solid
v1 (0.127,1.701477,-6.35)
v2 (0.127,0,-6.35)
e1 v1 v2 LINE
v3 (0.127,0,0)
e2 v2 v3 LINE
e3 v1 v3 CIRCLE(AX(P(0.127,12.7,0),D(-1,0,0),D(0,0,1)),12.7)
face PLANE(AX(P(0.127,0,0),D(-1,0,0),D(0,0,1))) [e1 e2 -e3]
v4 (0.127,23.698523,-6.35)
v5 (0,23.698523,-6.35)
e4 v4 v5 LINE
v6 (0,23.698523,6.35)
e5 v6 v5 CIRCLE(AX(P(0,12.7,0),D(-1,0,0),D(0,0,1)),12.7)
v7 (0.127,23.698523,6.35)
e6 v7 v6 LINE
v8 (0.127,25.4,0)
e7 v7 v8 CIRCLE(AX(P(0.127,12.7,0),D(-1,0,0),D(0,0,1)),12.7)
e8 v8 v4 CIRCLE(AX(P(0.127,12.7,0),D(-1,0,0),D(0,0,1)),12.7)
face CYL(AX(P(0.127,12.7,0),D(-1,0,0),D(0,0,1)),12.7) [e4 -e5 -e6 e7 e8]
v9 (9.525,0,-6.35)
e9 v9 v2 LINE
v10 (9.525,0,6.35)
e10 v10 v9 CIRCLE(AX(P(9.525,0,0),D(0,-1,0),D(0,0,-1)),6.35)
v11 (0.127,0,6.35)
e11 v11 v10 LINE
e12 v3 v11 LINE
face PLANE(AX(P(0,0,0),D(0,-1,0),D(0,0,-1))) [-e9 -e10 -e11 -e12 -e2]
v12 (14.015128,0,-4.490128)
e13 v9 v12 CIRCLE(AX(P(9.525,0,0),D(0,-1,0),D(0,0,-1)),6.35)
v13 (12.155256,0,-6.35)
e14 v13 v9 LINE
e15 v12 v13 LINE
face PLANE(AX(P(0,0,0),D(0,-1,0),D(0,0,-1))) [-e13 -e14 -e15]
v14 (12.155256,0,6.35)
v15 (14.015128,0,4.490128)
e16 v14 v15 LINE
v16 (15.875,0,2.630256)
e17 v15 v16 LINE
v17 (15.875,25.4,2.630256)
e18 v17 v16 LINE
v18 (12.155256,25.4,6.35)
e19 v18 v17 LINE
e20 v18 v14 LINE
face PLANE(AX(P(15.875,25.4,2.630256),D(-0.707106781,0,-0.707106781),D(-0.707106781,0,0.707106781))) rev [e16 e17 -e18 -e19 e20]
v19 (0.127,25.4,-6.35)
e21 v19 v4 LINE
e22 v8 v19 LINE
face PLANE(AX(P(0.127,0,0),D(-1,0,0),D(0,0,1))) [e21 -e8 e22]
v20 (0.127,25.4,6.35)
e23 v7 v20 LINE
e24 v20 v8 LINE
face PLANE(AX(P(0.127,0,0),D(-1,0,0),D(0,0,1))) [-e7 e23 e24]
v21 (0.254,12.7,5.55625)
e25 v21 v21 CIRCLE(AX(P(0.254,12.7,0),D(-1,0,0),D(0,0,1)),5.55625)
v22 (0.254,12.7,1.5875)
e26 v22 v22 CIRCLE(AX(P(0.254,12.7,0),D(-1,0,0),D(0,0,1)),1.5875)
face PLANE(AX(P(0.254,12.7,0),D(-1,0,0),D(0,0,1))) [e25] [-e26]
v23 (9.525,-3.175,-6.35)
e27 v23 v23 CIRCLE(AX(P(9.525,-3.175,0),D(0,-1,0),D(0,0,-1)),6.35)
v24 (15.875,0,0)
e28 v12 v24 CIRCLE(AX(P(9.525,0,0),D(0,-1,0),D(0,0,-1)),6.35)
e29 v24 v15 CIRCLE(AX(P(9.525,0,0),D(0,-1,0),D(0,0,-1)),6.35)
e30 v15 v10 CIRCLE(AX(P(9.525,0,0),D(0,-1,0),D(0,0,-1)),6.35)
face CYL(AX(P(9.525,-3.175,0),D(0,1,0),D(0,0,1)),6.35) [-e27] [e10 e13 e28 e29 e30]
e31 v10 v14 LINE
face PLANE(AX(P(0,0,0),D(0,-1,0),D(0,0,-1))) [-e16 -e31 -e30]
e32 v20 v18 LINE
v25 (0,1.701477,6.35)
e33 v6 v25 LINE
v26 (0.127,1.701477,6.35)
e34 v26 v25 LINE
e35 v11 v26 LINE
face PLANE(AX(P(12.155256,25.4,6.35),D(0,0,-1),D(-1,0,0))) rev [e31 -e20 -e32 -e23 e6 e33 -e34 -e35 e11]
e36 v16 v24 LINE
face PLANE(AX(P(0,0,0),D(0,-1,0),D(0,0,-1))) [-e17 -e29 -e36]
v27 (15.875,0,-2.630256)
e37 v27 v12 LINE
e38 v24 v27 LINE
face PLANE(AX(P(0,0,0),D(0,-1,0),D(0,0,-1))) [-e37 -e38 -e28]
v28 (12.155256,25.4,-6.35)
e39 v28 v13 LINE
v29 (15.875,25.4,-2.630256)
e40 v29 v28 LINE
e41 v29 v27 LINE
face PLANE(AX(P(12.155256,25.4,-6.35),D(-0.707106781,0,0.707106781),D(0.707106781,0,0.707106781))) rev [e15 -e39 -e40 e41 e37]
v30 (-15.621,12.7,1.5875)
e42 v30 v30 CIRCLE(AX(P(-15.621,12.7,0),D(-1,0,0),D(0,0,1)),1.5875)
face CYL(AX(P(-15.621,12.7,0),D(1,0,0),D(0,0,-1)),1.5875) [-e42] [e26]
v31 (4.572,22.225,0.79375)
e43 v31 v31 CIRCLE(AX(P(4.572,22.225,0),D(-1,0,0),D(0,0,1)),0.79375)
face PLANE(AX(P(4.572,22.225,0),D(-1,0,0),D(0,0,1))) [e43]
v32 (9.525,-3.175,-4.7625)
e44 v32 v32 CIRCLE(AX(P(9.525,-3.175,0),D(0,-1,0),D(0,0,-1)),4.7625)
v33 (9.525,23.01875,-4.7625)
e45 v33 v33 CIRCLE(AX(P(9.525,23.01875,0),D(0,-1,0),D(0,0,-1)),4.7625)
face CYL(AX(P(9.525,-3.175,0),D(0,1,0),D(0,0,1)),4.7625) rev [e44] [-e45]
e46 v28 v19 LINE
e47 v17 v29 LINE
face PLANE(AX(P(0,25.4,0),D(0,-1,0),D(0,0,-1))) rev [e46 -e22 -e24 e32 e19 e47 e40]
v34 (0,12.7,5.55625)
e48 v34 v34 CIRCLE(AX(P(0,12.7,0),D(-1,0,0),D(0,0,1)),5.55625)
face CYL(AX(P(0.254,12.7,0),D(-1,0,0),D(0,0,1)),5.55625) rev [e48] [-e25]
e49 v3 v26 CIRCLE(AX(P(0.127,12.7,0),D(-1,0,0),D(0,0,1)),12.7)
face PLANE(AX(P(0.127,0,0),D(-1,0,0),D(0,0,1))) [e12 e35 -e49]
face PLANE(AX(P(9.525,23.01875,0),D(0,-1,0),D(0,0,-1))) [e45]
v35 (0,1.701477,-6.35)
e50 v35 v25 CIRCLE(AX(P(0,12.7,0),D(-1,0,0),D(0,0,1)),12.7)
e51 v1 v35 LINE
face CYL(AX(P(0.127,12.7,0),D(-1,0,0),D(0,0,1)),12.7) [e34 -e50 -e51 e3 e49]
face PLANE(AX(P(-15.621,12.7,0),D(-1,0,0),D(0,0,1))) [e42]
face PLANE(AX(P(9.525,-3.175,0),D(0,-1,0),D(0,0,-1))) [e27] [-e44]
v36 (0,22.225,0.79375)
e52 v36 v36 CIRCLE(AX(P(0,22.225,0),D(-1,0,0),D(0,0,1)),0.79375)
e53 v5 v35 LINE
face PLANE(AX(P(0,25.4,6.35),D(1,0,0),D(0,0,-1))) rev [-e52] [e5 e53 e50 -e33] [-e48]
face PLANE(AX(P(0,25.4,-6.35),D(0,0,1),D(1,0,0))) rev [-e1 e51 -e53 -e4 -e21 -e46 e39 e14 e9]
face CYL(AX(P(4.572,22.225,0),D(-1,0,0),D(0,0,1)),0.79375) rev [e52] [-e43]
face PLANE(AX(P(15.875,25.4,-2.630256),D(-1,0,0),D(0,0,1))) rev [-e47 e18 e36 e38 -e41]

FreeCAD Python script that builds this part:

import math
import FreeCAD as App
import Part
import Sketcher
from FreeCAD import Vector
Q = App.Units.Quantity


def add_polygon(sketch, points):
    """Adds a closed chain of lines whose ends are joined by coincident constraints."""
    first, n = sketch.GeometryCount, len(points)
    for a, b in zip(points, points[1:] + points[:1]):
        sketch.addGeometry(Part.LineSegment(App.Vector(*a, 0), App.Vector(*b, 0)), False)
    for i in range(n):
        sketch.addConstraint(Sketcher.Constraint("Coincident", first + i, 2, first + (i + 1) % n, 1))

doc = App.newDocument("Part")
params = doc.addObject("Spreadsheet::Sheet", "Params")
for row, (alias, value) in enumerate([
    ("sketch1_height", "0.5 in"),
    ("pad1_length", "1 in"),
    ("sketch2_diameter", "0.5 in"),
    ("sketch2_diameter2", "0.375 in"),
    ("pad2_length", "0.125 in"),
    ("sketch3_diameter", "0.375 in"),
    ("pocket1_length", "1.03125 in"),
    ("sketch4_diameter", "0.4375 in"),
    ("pocket2_length", "0.01 in"),
    ("sketch5_diameter", "0.125 in"),
    ("pad3_length", "0.625 in"),
    ("sketch6_diameter", "0.0625 in"),
    ("pocket3_length", "0.18 in"),
    ("sketch7_radius", "0.5 in"),
    ("sketch7_height", "0.25 in"),
    ("pocket4_length", "0.005 in"),
], start=1):
    params.set(f"A{row}", alias)
    params.set(f"B{row}", "=" + value)
    params.setAlias(f"B{row}", alias)

body = doc.addObject("PartDesign::Body", "Body")

sketch1 = body.newObject("Sketcher::SketchObject", "Sketch")
sketch1.AttachmentSupport = (doc.getObject("XZ_Plane"), [""])
sketch1.MapMode = "FlatFace"
add_polygon(sketch1, [(0, -6.35), (0, 6.35), (12.155256, 6.35), (15.875, 2.630256), (15.875, -2.630256), (12.155256, -6.35)])
sketch1.addConstraint([
    Sketcher.Constraint("Vertical", 0),
    Sketcher.Constraint("Horizontal", 1),
    Sketcher.Constraint("Vertical", 3),
    Sketcher.Constraint("Horizontal", 5),
    Sketcher.Constraint("Symmetric", 0, 2, 5, 2, -1, 1),
    Sketcher.Constraint("Perpendicular", 2, 4),
    Sketcher.Constraint("Vertical", 1, 2, 4, 2),
    Sketcher.Constraint("Equal", 2, 4),
    Sketcher.Constraint("DistanceY", 0, 1, 0, 2, Q("0.5 in")),
    Sketcher.Constraint("DistanceX", -1, 1, 2, 2, Q("0.625 in")),
    Sketcher.Constraint("DistanceX", 1, 1, 1, 2, Q("12.155256 mm")),
])
sketch1.setExpression("Constraints[14]", "Params.sketch1_height")
pad1 = body.newObject("PartDesign::Pad", "Pad")
pad1.Profile = sketch1
pad1.setExpression("Length", "Params.pad1_length")
pad1.Reversed = True

sketch2 = body.newObject("Sketcher::SketchObject", "Sketch001")
sketch2.AttachmentSupport = (doc.getObject("XZ_Plane"), [""])
sketch2.MapMode = "FlatFace"
sketch2.addGeometry([
    Part.Circle(Vector(9.525, 0, 0), Vector(0, 0, 1), 6.35),
    Part.Circle(Vector(9.525, 0, 0), Vector(0, 0, 1), 4.7625),
], False)
sketch2.addConstraint([
    Sketcher.Constraint("Coincident", 1, 3, 0, 3),
    Sketcher.Constraint("PointOnObject", 0, 3, -1),
    Sketcher.Constraint("Diameter", 0, Q("0.5 in")),
    Sketcher.Constraint("Diameter", 1, Q("0.375 in")),
    Sketcher.Constraint("DistanceX", -1, 1, 0, 3, Q("0.375 in")),
])
sketch2.setExpression("Constraints[2]", "Params.sketch2_diameter")
sketch2.setExpression("Constraints[3]", "Params.sketch2_diameter2")
pad2 = body.newObject("PartDesign::Pad", "Pad001")
pad2.Profile = sketch2
pad2.setExpression("Length", "Params.pad2_length")

sketch3 = body.newObject("Sketcher::SketchObject", "Sketch002")
sketch3.AttachmentSupport = (doc.getObject("XZ_Plane"), [""])
sketch3.MapMode = "FlatFace"
sketch3.AttachmentOffset = App.Placement(Vector(0, 0, 0.125 * 25.4), App.Rotation())
sketch3.addGeometry(Part.Circle(Vector(9.525, 0, 0), Vector(0, 0, 1), 4.7625), False)
sketch3.addConstraint([
    Sketcher.Constraint("PointOnObject", 0, 3, -1),
    Sketcher.Constraint("Diameter", 0, Q("0.375 in")),
    Sketcher.Constraint("DistanceX", -1, 1, 0, 3, Q("0.375 in")),
])
sketch3.setExpression("Constraints[1]", "Params.sketch3_diameter")
pocket1 = body.newObject("PartDesign::Pocket", "Pocket")
pocket1.Profile = sketch3
pocket1.setExpression("Length", "Params.pocket1_length")

sketch4 = body.newObject("Sketcher::SketchObject", "Sketch003")
sketch4.AttachmentSupport = (doc.getObject("YZ_Plane"), [""])
sketch4.MapMode = "FlatFace"
sketch4.addGeometry(Part.Circle(Vector(12.7, 0, 0), Vector(0, 0, 1), 5.55625), False)
sketch4.addConstraint([
    Sketcher.Constraint("PointOnObject", 0, 3, -1),
    Sketcher.Constraint("Diameter", 0, Q("0.4375 in")),
    Sketcher.Constraint("DistanceX", -1, 1, 0, 3, Q("0.5 in")),
])
sketch4.setExpression("Constraints[1]", "Params.sketch4_diameter")
pocket2 = body.newObject("PartDesign::Pocket", "Pocket001")
pocket2.Profile = sketch4
pocket2.setExpression("Length", "Params.pocket2_length")
pocket2.Reversed = True

sketch5 = body.newObject("Sketcher::SketchObject", "Sketch004")
sketch5.AttachmentSupport = (doc.getObject("YZ_Plane"), [""])
sketch5.MapMode = "FlatFace"
sketch5.AttachmentOffset = App.Placement(Vector(0, 0, 0.01 * 25.4), App.Rotation())
sketch5.addGeometry(Part.Circle(Vector(12.7, 0, 0), Vector(0, 0, 1), 1.5875), False)
sketch5.addConstraint([
    Sketcher.Constraint("PointOnObject", 0, 3, -1),
    Sketcher.Constraint("Diameter", 0, Q("0.125 in")),
    Sketcher.Constraint("DistanceX", -1, 1, 0, 3, Q("0.5 in")),
])
sketch5.setExpression("Constraints[1]", "Params.sketch5_diameter")
pad3 = body.newObject("PartDesign::Pad", "Pad002")
pad3.Profile = sketch5
pad3.setExpression("Length", "Params.pad3_length")
pad3.Reversed = True

sketch6 = body.newObject("Sketcher::SketchObject", "Sketch005")
sketch6.AttachmentSupport = (doc.getObject("YZ_Plane"), [""])
sketch6.MapMode = "FlatFace"
sketch6.addGeometry(Part.Circle(Vector(22.225, 0, 0), Vector(0, 0, 1), 0.79375), False)
sketch6.addConstraint([
    Sketcher.Constraint("PointOnObject", 0, 3, -1),
    Sketcher.Constraint("Diameter", 0, Q("0.0625 in")),
    Sketcher.Constraint("DistanceX", -1, 1, 0, 3, Q("0.875 in")),
])
sketch6.setExpression("Constraints[1]", "Params.sketch6_diameter")
pocket3 = body.newObject("PartDesign::Pocket", "Pocket002")
pocket3.Profile = sketch6
pocket3.setExpression("Length", "Params.pocket3_length")
pocket3.Reversed = True

sketch7 = body.newObject("Sketcher::SketchObject", "Sketch006")
sketch7.AttachmentSupport = (doc.getObject("YZ_Plane"), [""])
sketch7.MapMode = "FlatFace"
sketch7.addGeometry([
    Part.ArcOfCircle(Part.Circle(Vector(12.7, 0, 0), Vector(0, 0, 1), 12.7), math.radians(0), math.radians(30)),
    Part.LineSegment(Vector(23.698523, 6.35, 0), Vector(25.4, 6.35, 0)),
    Part.LineSegment(Vector(25.4, 6.35, 0), Vector(25.4, 0, 0)),
    Part.LineSegment(Vector(25.4, -6.35, 0), Vector(23.698523, -6.35, 0)),
    Part.ArcOfCircle(Part.Circle(Vector(12.7, 0, 0), Vector(0, 0, 1), 12.7), math.radians(-30), math.radians(0)),
    Part.LineSegment(Vector(25.4, 0, 0), Vector(25.4, -6.35, 0)),
    Part.LineSegment(Vector(1.701477, -6.35, 0), Vector(0, -6.35, 0)),
    Part.LineSegment(Vector(0, -6.35, 0), Vector(0, 0, 0)),
    Part.ArcOfCircle(Part.Circle(Vector(12.7, 0, 0), Vector(0, 0, 1), 12.7), math.radians(180), math.radians(210)),
    Part.ArcOfCircle(Part.Circle(Vector(12.7, 0, 0), Vector(0, 0, 1), 12.7), math.radians(150), math.radians(180)),
    Part.LineSegment(Vector(0, 0, 0), Vector(0, 6.35, 0)),
    Part.LineSegment(Vector(0, 6.35, 0), Vector(1.701477, 6.35, 0)),
], False)
sketch7.addConstraint([
    Sketcher.Constraint("Coincident", 0, 2, 1, 1),
    Sketcher.Constraint("Coincident", 1, 2, 2, 1),
    Sketcher.Constraint("Tangent", 2, 2, 0, 1),
    Sketcher.Constraint("Coincident", 3, 2, 4, 1),
    Sketcher.Constraint("Tangent", 4, 2, 5, 1),
    Sketcher.Constraint("Coincident", 5, 2, 3, 1),
    Sketcher.Constraint("Coincident", 6, 2, 7, 1),
    Sketcher.Constraint("Tangent", 7, 2, 8, 1),
    Sketcher.Constraint("Coincident", 8, 2, 6, 1),
    Sketcher.Constraint("Tangent", 9, 2, 10, 1),
    Sketcher.Constraint("Coincident", 10, 2, 11, 1),
    Sketcher.Constraint("Coincident", 11, 2, 9, 1),
    Sketcher.Constraint("Horizontal", 1),
    Sketcher.Constraint("Vertical", 2),
    Sketcher.Constraint("Horizontal", 3),
    Sketcher.Constraint("Vertical", 5),
    Sketcher.Constraint("Horizontal", 6),
    Sketcher.Constraint("Vertical", 7),
    Sketcher.Constraint("Vertical", 10),
    Sketcher.Constraint("Horizontal", 11),
    Sketcher.Constraint("Coincident", 7, 2, -1, 1),
    Sketcher.Constraint("Coincident", 9, 2, -1, 1),
    Sketcher.Constraint("Coincident", 4, 3, 0, 3),
    Sketcher.Constraint("Coincident", 8, 3, 0, 3),
    Sketcher.Constraint("Equal", 0, 4),
    Sketcher.Constraint("Equal", 4, 8),
    Sketcher.Constraint("Equal", 8, 9),
    Sketcher.Constraint("Horizontal", 5, 2, 6, 2),
    Sketcher.Constraint("Horizontal", 1, 2, 10, 2),
    Sketcher.Constraint("Vertical", 0, 2, 3, 2),
    Sketcher.Constraint("Radius", 0, Q("0.5 in")),
    Sketcher.Constraint("DistanceY", 2, 2, 2, 1, Q("0.25 in")),
])
sketch7.setExpression("Constraints[30]", "Params.sketch7_radius")
sketch7.setExpression("Constraints[31]", "Params.sketch7_height")
pocket4 = body.newObject("PartDesign::Pocket", "Pocket003")
pocket4.Profile = sketch7
pocket4.setExpression("Length", "Params.pocket4_length")
pocket4.Reversed = True

doc.recompute()
